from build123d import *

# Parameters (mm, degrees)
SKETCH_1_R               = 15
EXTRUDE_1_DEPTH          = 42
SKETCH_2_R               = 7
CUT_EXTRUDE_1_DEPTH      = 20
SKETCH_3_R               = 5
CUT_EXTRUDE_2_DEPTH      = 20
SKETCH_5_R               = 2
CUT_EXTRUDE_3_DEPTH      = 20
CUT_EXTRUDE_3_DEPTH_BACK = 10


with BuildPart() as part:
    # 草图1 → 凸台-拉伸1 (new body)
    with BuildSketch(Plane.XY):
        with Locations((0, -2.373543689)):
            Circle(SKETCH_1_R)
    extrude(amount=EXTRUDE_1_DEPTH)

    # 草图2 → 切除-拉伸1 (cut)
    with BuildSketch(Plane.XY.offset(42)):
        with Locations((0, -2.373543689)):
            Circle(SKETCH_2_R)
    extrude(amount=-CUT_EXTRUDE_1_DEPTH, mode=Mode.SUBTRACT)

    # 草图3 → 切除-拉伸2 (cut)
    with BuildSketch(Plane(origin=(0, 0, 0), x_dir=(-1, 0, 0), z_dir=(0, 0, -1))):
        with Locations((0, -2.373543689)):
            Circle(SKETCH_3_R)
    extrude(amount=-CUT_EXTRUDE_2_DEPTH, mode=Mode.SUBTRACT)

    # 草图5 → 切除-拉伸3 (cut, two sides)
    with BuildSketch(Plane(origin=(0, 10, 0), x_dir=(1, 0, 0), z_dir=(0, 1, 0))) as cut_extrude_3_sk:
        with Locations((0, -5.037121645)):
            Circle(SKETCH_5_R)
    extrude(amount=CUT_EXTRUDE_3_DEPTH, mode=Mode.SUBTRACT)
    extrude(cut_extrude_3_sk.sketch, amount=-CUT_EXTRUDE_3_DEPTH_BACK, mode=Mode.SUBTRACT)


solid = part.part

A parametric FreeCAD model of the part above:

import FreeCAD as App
import Part
import Sketcher
from FreeCAD import Vector
Q = App.Units.Quantity

doc = App.newDocument("Part")
body = doc.addObject("PartDesign::Body", "Body")

# Sketch on XY plane
sketch1 = body.newObject("Sketcher::SketchObject", "Sketch")
sketch1.AttachmentSupport = (doc.getObject("XY_Plane"), [""])
sketch1.MapMode = "FlatFace"
sketch1.addGeometry(Part.Circle(Vector(0, -2.373544, 0), Vector(0, 0, 1), 15), False)
sketch1.addConstraint([
    Sketcher.Constraint("PointOnObject", 0, 3, -2),
    Sketcher.Constraint("Diameter", 0, Q("30 mm")),
    Sketcher.Constraint("DistanceY", 0, 3, -1, 1, Q("2.373544 mm")),
])
pad1 = body.newObject("PartDesign::Pad", "Pad")
pad1.Profile = sketch1
pad1.Length = 42

# Sketch on XY plane
sketch2 = body.newObject("Sketcher::SketchObject", "Sketch001")
sketch2.AttachmentSupport = (doc.getObject("XY_Plane"), [""])
sketch2.MapMode = "FlatFace"
sketch2.AttachmentOffset = App.Placement(Vector(0, 0, 42), App.Rotation())
sketch2.addGeometry(Part.Circle(Vector(0, -2.373544, 0), Vector(0, 0, 1), 7), False)
sketch2.addConstraint([
    Sketcher.Constraint("PointOnObject", 0, 3, -2),
    Sketcher.Constraint("Diameter", 0, Q("14 mm")),
    Sketcher.Constraint("DistanceY", 0, 3, -1, 1, Q("2.373544 mm")),
])
pocket1 = body.newObject("PartDesign::Pocket", "Pocket")
pocket1.Profile = sketch2
pocket1.Length = 20

# Sketch on XY plane
sketch3 = body.newObject("Sketcher::SketchObject", "Sketch002")
sketch3.AttachmentSupport = (doc.getObject("XY_Plane"), [""])
sketch3.MapMode = "FlatFace"
sketch3.addGeometry(Part.Circle(Vector(0, -2.373544, 0), Vector(0, 0, 1), 5), False)
sketch3.addConstraint([
    Sketcher.Constraint("PointOnObject", 0, 3, -2),
    Sketcher.Constraint("Diameter", 0, Q("10 mm")),
    Sketcher.Constraint("DistanceY", 0, 3, -1, 1, Q("2.373544 mm")),
])
pocket2 = body.newObject("PartDesign::Pocket", "Pocket001")
pocket2.Profile = sketch3
pocket2.Length = 20
pocket2.Reversed = True

# Sketch on XZ plane
sketch4 = body.newObject("Sketcher::SketchObject", "Sketch003")
sketch4.AttachmentSupport = (doc.getObject("XZ_Plane"), [""])
sketch4.MapMode = "FlatFace"
sketch4.AttachmentOffset = App.Placement(Vector(0, 0, -10), App.Rotation())
sketch4.addGeometry(Part.Circle(Vector(0, 5.037122, 0), Vector(0, 0, 1), 2), False)
sketch4.addConstraint([
    Sketcher.Constraint("PointOnObject", 0, 3, -2),
    Sketcher.Constraint("Diameter", 0, Q("4 mm")),
    Sketcher.Constraint("DistanceY", -1, 1, 0, 3, Q("5.037122 mm")),
])
pocket3 = body.newObject("PartDesign::Pocket", "Pocket002")
pocket3.Profile = sketch4
pocket3.Type = "TwoLengths"
pocket3.Length = 20
pocket3.Length2 = 10

doc.recompute()
